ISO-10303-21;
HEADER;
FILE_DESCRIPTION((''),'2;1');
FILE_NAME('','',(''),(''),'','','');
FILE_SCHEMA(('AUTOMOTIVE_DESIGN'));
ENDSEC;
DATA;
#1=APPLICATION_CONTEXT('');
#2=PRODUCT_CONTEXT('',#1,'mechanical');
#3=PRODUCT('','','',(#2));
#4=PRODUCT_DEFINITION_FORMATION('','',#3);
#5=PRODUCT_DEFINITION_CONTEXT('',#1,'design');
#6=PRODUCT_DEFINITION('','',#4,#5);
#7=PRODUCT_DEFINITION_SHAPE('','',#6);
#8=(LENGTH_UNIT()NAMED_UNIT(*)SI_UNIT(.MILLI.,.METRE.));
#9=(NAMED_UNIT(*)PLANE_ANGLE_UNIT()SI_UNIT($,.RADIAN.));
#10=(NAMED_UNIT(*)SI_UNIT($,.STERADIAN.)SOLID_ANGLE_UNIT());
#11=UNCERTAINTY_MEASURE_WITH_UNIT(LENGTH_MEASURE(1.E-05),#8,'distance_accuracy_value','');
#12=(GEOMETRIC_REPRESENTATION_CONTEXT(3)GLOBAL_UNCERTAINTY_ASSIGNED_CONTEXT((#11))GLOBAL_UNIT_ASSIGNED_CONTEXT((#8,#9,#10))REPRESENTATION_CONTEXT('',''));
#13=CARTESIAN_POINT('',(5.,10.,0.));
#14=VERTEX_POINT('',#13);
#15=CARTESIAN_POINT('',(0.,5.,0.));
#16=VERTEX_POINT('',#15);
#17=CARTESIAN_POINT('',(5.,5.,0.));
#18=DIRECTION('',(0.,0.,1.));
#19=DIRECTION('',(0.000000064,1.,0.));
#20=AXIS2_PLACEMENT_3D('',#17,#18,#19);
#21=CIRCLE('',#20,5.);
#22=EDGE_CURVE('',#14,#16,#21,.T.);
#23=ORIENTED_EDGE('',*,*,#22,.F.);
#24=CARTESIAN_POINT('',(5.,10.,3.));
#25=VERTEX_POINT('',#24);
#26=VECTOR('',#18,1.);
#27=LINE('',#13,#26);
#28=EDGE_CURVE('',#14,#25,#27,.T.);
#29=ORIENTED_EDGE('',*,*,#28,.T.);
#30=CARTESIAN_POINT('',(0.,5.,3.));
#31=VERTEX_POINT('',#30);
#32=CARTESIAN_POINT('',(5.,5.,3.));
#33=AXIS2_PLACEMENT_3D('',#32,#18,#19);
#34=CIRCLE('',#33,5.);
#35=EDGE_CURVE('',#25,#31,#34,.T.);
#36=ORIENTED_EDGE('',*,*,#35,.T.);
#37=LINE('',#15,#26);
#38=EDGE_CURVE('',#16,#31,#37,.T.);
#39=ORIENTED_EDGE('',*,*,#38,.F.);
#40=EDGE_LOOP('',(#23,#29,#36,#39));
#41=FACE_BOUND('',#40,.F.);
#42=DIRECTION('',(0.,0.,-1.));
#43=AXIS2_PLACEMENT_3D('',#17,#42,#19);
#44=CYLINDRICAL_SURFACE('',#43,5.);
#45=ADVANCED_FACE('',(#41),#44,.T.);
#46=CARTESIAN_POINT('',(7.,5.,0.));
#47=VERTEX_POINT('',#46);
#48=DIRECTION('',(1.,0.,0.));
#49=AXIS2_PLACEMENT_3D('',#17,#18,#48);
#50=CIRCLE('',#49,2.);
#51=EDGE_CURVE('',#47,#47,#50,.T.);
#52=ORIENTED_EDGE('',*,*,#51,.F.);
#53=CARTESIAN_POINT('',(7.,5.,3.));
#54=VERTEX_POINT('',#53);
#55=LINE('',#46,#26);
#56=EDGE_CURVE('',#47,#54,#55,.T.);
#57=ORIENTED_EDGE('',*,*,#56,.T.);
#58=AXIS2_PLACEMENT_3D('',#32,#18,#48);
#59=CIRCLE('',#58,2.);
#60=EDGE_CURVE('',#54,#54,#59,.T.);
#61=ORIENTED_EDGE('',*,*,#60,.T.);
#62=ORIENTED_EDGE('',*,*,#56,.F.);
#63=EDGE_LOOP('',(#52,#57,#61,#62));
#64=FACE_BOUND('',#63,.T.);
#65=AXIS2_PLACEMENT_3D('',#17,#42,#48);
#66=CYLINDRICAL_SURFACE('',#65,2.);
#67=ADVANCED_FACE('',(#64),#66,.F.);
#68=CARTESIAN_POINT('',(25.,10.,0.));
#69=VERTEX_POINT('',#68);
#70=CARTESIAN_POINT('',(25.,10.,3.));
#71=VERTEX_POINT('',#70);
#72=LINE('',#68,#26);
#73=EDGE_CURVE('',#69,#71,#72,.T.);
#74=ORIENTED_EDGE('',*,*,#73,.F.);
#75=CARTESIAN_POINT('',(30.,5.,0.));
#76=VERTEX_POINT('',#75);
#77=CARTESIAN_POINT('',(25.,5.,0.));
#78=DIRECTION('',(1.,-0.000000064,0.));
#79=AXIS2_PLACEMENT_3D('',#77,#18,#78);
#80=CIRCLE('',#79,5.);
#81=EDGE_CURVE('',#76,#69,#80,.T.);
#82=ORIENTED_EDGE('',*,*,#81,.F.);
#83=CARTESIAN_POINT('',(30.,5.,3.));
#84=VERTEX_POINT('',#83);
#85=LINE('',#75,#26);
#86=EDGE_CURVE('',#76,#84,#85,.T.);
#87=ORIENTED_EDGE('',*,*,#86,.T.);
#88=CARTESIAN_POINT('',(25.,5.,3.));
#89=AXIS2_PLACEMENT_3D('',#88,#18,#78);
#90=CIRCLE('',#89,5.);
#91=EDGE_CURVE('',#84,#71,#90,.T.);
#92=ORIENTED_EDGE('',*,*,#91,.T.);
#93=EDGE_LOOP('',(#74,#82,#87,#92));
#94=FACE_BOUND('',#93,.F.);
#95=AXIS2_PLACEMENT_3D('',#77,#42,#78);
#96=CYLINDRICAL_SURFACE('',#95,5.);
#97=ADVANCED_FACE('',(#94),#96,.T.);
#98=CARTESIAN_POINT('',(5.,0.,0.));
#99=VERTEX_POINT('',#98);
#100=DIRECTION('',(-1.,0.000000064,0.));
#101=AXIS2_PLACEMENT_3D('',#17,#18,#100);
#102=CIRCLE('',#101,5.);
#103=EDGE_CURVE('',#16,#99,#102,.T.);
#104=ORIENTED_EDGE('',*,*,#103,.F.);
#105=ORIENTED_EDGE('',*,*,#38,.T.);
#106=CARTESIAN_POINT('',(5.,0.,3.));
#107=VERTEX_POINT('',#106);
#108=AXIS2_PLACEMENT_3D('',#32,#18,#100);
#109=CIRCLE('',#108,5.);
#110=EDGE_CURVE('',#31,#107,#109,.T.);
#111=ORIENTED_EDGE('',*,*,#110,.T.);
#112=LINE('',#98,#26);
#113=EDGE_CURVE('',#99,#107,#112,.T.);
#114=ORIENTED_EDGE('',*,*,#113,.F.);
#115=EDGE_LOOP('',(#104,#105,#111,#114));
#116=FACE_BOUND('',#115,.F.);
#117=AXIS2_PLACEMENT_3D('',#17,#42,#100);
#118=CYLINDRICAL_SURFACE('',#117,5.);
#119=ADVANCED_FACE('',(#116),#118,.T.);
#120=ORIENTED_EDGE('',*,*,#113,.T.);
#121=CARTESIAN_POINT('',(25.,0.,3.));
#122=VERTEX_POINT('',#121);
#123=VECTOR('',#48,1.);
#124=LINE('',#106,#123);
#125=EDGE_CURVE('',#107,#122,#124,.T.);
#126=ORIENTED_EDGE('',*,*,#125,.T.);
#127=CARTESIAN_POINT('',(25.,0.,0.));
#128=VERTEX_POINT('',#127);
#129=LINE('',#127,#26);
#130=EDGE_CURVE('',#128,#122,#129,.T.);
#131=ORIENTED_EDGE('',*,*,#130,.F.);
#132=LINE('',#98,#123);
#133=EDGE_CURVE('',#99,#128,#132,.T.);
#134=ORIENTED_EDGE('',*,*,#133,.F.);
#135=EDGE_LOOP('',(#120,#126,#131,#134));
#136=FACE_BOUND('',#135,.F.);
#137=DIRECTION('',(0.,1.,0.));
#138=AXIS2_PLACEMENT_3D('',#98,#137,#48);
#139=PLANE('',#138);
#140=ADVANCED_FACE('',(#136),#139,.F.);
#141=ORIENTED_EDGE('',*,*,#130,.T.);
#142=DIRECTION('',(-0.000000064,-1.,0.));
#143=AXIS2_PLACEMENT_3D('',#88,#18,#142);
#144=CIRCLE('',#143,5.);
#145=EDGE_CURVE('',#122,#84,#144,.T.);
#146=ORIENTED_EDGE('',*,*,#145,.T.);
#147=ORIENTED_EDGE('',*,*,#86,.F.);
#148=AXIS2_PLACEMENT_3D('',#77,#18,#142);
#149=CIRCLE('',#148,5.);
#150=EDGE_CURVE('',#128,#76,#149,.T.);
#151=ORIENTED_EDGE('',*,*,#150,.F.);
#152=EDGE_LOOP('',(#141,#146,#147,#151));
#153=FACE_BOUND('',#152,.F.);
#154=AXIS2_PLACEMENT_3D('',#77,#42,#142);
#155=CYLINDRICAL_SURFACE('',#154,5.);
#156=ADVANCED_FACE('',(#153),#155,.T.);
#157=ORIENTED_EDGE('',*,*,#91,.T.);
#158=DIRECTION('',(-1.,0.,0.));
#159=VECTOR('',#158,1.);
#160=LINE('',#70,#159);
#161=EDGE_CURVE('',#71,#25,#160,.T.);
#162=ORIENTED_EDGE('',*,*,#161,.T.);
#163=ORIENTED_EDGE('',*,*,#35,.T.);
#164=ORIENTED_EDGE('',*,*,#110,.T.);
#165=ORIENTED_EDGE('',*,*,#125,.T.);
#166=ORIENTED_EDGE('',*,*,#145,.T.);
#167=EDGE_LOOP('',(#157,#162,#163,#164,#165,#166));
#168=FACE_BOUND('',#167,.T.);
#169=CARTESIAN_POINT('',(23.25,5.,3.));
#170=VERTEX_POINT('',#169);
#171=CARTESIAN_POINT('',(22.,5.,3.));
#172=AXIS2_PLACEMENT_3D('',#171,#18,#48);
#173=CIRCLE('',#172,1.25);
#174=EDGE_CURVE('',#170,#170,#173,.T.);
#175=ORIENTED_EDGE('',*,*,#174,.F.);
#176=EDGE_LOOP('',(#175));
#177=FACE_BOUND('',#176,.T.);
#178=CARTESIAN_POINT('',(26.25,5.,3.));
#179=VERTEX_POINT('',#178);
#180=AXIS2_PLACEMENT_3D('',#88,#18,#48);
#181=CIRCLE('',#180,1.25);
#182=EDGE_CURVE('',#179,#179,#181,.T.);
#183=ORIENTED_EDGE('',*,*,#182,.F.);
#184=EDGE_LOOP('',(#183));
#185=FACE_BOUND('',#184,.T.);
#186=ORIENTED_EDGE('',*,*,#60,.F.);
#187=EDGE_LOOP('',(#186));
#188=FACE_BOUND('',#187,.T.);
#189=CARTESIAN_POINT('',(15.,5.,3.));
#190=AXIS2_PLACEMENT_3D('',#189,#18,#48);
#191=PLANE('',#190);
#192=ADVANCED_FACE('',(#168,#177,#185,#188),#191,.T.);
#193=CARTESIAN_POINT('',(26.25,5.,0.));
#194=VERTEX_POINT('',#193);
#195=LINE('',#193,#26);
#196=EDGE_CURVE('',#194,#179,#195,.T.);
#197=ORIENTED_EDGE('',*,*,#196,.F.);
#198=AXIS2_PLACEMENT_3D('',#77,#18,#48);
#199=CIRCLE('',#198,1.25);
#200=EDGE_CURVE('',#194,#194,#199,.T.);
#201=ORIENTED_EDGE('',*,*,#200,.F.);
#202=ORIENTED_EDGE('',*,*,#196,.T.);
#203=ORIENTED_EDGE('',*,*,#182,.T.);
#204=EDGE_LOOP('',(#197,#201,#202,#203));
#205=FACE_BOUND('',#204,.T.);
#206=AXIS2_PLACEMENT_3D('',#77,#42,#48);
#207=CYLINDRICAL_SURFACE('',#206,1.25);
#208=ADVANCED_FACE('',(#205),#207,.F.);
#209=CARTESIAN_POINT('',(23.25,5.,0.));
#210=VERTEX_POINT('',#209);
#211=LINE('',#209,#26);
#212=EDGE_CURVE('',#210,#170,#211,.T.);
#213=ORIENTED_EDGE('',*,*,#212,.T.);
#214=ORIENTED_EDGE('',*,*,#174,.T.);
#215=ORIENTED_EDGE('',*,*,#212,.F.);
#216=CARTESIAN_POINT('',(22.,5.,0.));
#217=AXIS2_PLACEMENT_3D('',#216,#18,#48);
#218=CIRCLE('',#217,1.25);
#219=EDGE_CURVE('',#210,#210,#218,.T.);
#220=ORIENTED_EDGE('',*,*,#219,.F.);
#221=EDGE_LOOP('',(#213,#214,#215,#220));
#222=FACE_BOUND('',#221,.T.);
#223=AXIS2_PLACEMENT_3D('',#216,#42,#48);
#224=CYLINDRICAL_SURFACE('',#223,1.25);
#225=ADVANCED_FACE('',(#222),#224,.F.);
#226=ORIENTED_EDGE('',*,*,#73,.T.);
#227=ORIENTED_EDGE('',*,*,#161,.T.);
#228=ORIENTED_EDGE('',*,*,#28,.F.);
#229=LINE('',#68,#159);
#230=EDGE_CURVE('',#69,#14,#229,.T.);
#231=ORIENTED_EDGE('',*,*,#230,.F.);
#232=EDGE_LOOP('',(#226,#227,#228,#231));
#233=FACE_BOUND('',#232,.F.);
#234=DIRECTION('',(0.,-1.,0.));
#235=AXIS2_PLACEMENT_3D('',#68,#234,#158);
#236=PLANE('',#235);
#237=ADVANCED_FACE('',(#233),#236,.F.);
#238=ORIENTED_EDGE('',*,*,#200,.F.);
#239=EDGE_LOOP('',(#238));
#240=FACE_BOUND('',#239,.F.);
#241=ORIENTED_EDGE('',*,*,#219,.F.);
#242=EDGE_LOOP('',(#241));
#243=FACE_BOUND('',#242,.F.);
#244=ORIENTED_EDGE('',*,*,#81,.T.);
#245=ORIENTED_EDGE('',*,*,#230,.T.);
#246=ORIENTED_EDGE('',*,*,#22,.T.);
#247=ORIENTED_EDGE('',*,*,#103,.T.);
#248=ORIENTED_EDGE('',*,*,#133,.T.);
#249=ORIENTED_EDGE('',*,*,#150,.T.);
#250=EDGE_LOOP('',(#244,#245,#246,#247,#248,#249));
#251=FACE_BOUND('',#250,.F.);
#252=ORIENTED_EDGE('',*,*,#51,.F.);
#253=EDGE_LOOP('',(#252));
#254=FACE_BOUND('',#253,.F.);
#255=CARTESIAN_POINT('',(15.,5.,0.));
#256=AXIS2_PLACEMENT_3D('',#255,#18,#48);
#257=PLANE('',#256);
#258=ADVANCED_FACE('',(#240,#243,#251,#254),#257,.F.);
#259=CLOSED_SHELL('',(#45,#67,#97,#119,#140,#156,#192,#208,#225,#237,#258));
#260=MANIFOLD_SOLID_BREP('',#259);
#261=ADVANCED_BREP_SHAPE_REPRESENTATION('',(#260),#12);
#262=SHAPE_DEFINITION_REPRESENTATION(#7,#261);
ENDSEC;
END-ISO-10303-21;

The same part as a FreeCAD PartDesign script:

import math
import FreeCAD as App
import Part
import Sketcher

V = App.Vector
Q = App.Units.Quantity

doc = App.newDocument("Part")
params = doc.addObject("Spreadsheet::Sheet", "Params")
for row, (alias, value) in enumerate([
    ("sketch1_diameter", "4 mm"),
    ("sketch1_radius", "5 mm"),
    ("sketch1_diameter2", "2.5 mm"),
    ("sketch1_width", "20 mm"),
    ("pad1_length", "3 mm"),
], start=1):
    params.set(f"A{row}", alias)
    params.set(f"B{row}", "=" + value)
    params.setAlias(f"B{row}", alias)

body = doc.addObject("PartDesign::Body", "Body")

# Sketch on XY plane
sketch1 = body.newObject("Sketcher::SketchObject", "Sketch")
sketch1.AttachmentSupport = (doc.getObject("XY_Plane"), [""])
sketch1.MapMode = "FlatFace"
sketch1.addGeometry(Part.ArcOfCircle(Part.Circle(V(5, 5, 0), V(0, 0, 1), 5), math.radians(179.999996), math.radians(270.000004)), False)
sketch1.addGeometry(Part.LineSegment(V(5, 0, 0), V(25, 0, 0)), False)
sketch1.addGeometry(Part.ArcOfCircle(Part.Circle(V(25, 5, 0), V(0, 0, 1), 5), math.radians(-90.000004), math.radians(0.000004)), False)
sketch1.addGeometry(Part.ArcOfCircle(Part.Circle(V(25, 5, 0), V(0, 0, 1), 5), math.radians(-0.000004), math.radians(90.000004)), False)
sketch1.addGeometry(Part.LineSegment(V(25, 10, 0), V(5, 10, 0)), False)
sketch1.addGeometry(Part.ArcOfCircle(Part.Circle(V(5, 5, 0), V(0, 0, 1), 5), math.radians(89.999996), math.radians(180.000004)), False)
sketch1.addGeometry(Part.Circle(V(5, 5, 0), V(0, 0, 1), 2), False)
sketch1.addGeometry(Part.Circle(V(22, 5, 0), V(0, 0, 1), 1.25), False)
sketch1.addGeometry(Part.Circle(V(25, 5, 0), V(0, 0, 1), 1.25), False)
sketch1.addConstraint(Sketcher.Constraint("Tangent", 0, 2, 1, 1))
sketch1.addConstraint(Sketcher.Constraint("Tangent", 1, 2, 2, 1))
sketch1.addConstraint(Sketcher.Constraint("Tangent", 2, 2, 3, 1))
sketch1.addConstraint(Sketcher.Constraint("Tangent", 3, 2, 4, 1))
sketch1.addConstraint(Sketcher.Constraint("Tangent", 4, 2, 5, 1))
sketch1.addConstraint(Sketcher.Constraint("Tangent", 5, 2, 0, 1))
sketch1.addConstraint(Sketcher.Constraint("Horizontal", 1))
sketch1.addConstraint(Sketcher.Constraint("Horizontal", 4))
sketch1.addConstraint(Sketcher.Constraint("Coincident", 6, 3, 0, 3))
sketch1.addConstraint(Sketcher.Constraint("Coincident", 8, 3, 2, 3))
sketch1.addConstraint(Sketcher.Constraint("Equal", 0, 2))
sketch1.addConstraint(Sketcher.Constraint("Equal", 2, 3))
sketch1.addConstraint(Sketcher.Constraint("Equal", 7, 8))
sketch1.addConstraint(Sketcher.Constraint("PointOnObject", 0, 2, -1))
sketch1.addConstraint(Sketcher.Constraint("PointOnObject", 5, 2, -2))
sketch1.addConstraint(Sketcher.Constraint("Horizontal", 6, 3, 7, 3))
sketch1.addConstraint(Sketcher.Constraint("Horizontal", 8, 3, 2, 2))
sketch1.addConstraint(Sketcher.Constraint("Horizontal", 2, 2, 5, 2))
sketch1.addConstraint(Sketcher.Constraint("Diameter", 6, Q("4 mm")))
sketch1.addConstraint(Sketcher.Constraint("Radius", 0, Q("5 mm")))
sketch1.addConstraint(Sketcher.Constraint("Diameter", 7, Q("2.5 mm")))
sketch1.addConstraint(Sketcher.Constraint("DistanceX", 1, 1, 1, 2, Q("20 mm")))
sketch1.addConstraint(Sketcher.Constraint("DistanceX", -1, 1, 7, 3, Q("22 mm")))
sketch1.setExpression("Constraints[18]", "Params.sketch1_diameter")
sketch1.setExpression("Constraints[19]", "Params.sketch1_radius")
sketch1.setExpression("Constraints[20]", "Params.sketch1_diameter2")
sketch1.setExpression("Constraints[21]", "Params.sketch1_width")
pad1 = body.newObject("PartDesign::Pad", "Pad")
pad1.Profile = sketch1
pad1.setExpression("Length", "Params.pad1_length")

doc.recompute()
